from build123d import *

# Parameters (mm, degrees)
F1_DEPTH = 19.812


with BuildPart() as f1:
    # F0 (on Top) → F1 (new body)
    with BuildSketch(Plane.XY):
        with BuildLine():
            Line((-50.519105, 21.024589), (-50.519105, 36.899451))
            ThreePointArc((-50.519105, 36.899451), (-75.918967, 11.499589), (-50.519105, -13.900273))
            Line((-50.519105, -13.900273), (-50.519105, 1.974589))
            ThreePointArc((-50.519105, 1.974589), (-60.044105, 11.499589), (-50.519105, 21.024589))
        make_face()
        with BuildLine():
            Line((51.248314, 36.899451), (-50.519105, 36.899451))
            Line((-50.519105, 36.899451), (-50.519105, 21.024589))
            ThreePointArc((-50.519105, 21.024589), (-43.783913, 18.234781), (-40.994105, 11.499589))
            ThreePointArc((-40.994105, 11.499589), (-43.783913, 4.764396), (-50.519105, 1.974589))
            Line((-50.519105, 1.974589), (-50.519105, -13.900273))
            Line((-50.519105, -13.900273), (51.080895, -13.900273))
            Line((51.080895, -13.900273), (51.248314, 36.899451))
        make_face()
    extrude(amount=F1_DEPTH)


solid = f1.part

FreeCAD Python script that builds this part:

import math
import FreeCAD as App
import Part
import Sketcher
Q = App.Units.Quantity

doc = App.newDocument("Part")
body = doc.addObject("PartDesign::Body", "Body")

# Sketch on XY plane
sketch1 = doc.addObject("Sketcher::SketchObject", "Sketch")
body.addObject(sketch1)
sketch1.AttachmentSupport = (doc.XY_Plane, [""])
sketch1.MapMode = "FlatFace"
sketch1.addGeometry([
    Part.ArcOfCircle(Part.Circle(App.Vector(-50.519105, 11.499589, 0), App.Vector(0, 0, 1), 25.399862), math.radians(90), math.radians(270)),  # 0
    Part.LineSegment(App.Vector(-50.519105, -13.900273, 0), App.Vector(51.080895, -13.900273, 0)),  # 1
    Part.LineSegment(App.Vector(51.080895, -13.900273, 0), App.Vector(51.248314, 36.899451, 0)),  # 2
    Part.LineSegment(App.Vector(51.248314, 36.899451, 0), App.Vector(-50.519105, 36.899451, 0)),  # 3
    Part.ArcOfCircle(Part.Circle(App.Vector(-50.519105, 11.499589, 0), App.Vector(0, 0, 1), 9.525), math.radians(90), math.radians(270)),  # 4
    Part.ArcOfCircle(Part.Circle(App.Vector(-50.519105, 11.499589, 0), App.Vector(0, 0, 1), 9.525), math.radians(0.000002), math.radians(89.999998)),  # 5
    Part.ArcOfCircle(Part.Circle(App.Vector(-50.519104, 11.499588, 0), App.Vector(0, 0, 1), 9.524999), math.radians(-90.000008), math.radians(0.000008)),  # 6
], False)
sketch1.addConstraint([
    Sketcher.Constraint("Tangent", 0, 2, 1, 1),
    Sketcher.Constraint("Coincident", 1, 2, 2, 1),
    Sketcher.Constraint("Coincident", 2, 2, 3, 1),
    Sketcher.Constraint("Tangent", 3, 2, 0, 1),
    Sketcher.Constraint("Tangent", 4, 1, 5, 2),
    Sketcher.Constraint("Tangent", 5, 1, 6, 2),
    Sketcher.Constraint("Tangent", 6, 1, 4, 2),
    Sketcher.Constraint("Horizontal", 1),
    Sketcher.Constraint("Horizontal", 3),
    Sketcher.Constraint("Coincident", 4, 3, 0, 3),
    Sketcher.Constraint("Horizontal", 6, 3, 5, 1),
    Sketcher.Constraint("Vertical", 3, 2, 4, 1),
    Sketcher.Constraint("Vertical", 4, 1, 6, 1),
    Sketcher.Constraint("DistanceX", 1, 1, 1, 2, Q("4 in")),
    Sketcher.Constraint("Distance", 2, Q("2 in")),
    Sketcher.Constraint("Radius", 4, Q("0.375 in")),
    Sketcher.Constraint("DistanceX", 3, 2, 3, 1, 101.767419),
    Sketcher.Constraint("DistanceY", -1, 1, 0, 3, 11.499589),
    Sketcher.Constraint("DistanceX", 0, 3, -1, 1, 50.519105),
])
pad1 = doc.addObject("PartDesign::Pad", "Pad")
body.addObject(pad1)
pad1.Profile = sketch1
pad1.Length = Q("0.78 in")

doc.recompute()
